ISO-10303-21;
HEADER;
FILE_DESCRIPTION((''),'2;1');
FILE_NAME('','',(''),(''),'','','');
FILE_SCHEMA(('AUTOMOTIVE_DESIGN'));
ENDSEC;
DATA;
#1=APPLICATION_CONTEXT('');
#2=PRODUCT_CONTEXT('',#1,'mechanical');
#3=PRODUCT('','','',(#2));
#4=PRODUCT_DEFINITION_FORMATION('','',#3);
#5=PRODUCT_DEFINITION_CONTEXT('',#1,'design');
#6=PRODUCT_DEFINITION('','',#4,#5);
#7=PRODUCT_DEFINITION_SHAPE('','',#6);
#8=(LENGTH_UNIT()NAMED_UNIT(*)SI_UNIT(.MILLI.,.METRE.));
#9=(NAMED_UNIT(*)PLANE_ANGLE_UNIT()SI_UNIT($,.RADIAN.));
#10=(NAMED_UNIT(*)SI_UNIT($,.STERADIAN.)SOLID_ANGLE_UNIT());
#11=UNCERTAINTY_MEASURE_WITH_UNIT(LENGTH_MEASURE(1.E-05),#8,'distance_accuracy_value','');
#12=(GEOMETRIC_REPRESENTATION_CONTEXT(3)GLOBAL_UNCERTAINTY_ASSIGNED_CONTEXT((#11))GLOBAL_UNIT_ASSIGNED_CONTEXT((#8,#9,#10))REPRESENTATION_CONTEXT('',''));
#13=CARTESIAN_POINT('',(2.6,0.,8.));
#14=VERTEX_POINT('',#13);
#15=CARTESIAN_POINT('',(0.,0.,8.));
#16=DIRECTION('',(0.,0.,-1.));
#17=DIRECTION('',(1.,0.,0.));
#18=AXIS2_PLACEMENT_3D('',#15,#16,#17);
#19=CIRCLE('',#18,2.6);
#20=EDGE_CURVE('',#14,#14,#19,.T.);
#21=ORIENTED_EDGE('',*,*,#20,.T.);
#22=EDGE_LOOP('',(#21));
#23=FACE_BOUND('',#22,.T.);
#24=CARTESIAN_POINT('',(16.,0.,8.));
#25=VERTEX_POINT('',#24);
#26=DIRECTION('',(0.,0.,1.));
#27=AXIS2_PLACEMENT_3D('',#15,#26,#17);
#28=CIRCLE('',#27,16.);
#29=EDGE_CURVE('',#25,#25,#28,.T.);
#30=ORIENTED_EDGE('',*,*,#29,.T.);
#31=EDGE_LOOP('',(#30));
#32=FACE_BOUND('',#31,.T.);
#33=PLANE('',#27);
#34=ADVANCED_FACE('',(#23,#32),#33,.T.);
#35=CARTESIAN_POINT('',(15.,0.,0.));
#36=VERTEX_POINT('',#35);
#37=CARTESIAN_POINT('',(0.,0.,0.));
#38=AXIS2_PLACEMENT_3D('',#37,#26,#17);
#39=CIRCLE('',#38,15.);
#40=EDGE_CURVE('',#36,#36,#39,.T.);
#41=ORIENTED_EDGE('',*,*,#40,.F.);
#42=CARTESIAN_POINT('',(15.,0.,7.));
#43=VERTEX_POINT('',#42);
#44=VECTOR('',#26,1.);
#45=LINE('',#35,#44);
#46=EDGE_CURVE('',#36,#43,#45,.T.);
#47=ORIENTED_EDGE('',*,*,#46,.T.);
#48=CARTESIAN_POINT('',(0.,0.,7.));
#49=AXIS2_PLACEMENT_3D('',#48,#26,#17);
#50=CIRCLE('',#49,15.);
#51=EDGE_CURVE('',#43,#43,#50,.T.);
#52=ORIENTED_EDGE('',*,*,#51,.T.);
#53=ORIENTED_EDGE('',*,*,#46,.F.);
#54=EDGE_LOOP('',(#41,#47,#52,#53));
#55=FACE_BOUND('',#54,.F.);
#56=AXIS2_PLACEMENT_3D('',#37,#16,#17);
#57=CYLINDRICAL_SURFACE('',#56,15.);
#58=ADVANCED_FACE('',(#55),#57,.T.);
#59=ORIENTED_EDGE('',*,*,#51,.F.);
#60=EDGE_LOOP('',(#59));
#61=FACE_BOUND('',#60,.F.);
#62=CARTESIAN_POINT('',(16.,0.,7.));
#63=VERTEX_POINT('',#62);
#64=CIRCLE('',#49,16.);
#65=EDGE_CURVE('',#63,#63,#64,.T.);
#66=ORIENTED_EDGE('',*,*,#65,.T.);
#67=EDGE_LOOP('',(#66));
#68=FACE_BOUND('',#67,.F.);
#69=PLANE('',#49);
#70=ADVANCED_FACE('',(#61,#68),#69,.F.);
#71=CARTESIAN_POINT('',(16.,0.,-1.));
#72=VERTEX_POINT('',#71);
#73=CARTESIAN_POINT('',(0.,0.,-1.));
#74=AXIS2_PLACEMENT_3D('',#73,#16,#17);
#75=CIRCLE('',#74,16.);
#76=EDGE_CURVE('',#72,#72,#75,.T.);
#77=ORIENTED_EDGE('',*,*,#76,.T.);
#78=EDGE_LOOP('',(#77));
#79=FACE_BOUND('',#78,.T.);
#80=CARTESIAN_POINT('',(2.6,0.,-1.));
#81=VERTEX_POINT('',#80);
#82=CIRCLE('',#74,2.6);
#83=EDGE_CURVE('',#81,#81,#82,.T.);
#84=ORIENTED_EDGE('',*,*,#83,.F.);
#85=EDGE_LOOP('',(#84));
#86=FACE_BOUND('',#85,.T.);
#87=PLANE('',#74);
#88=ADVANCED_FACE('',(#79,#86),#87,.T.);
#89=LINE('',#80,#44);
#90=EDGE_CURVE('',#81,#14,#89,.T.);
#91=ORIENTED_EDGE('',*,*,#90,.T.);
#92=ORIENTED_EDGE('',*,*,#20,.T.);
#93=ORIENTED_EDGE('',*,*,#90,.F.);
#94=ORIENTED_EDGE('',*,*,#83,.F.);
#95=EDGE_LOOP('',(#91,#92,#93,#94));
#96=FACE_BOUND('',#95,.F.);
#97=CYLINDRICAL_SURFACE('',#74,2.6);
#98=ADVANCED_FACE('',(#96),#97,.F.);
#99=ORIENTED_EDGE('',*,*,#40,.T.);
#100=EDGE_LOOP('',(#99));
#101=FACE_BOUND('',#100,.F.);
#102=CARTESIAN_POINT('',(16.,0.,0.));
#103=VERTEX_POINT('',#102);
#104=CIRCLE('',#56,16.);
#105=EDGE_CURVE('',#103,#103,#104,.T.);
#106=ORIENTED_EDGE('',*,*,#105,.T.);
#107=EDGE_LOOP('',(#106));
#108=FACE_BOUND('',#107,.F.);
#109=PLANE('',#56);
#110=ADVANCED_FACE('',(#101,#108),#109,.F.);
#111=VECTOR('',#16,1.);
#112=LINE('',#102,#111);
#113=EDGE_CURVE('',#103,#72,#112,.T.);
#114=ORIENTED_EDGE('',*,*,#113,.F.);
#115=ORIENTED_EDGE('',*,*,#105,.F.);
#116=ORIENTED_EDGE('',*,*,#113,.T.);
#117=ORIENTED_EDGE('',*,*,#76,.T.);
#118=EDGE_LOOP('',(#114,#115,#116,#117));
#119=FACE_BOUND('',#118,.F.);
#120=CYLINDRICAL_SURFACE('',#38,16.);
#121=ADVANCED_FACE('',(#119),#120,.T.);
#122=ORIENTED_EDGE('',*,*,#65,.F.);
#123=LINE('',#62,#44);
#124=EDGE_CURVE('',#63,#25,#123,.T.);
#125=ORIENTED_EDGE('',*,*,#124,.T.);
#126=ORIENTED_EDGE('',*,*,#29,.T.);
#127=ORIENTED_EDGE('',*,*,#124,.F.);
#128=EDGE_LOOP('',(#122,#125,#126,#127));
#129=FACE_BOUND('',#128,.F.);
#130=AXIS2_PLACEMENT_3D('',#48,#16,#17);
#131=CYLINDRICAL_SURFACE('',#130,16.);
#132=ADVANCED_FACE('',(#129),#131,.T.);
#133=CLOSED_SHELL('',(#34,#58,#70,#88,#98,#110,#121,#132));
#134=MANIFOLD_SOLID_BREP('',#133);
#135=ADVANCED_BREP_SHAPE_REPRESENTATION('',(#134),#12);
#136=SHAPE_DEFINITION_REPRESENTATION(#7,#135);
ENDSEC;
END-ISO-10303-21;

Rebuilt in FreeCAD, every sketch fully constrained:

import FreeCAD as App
import Part
import Sketcher

doc = App.newDocument("Part")
params = doc.addObject("Spreadsheet::Sheet", "Params")
for row, (alias, value) in enumerate([
    ("sketch1_diameter", "30 mm"),
    ("pad1_length", "7 mm"),
    ("sketch2_diameter", "32 mm"),
    ("pad2_length", "1 mm"),
    ("sketch3_diameter", "32 mm"),
    ("pad3_length", "1 mm"),
    ("sketch4_diameter", "5.2 mm"),
], start=1):
    params.set(f"A{row}", alias)
    params.set(f"B{row}", "=" + value)
    params.setAlias(f"B{row}", alias)

body = doc.addObject("PartDesign::Body", "Body")

sketch1 = doc.addObject("Sketcher::SketchObject", "Sketch")
body.addObject(sketch1)
sketch1.AttachmentSupport = (doc.XY_Plane, [""])
sketch1.MapMode = "FlatFace"
sketch1.addGeometry(Part.Circle(App.Vector(0, 0, 0), App.Vector(0, 0, 1), 15), False)
sketch1.addConstraint([
    Sketcher.Constraint("Coincident", 0, 3, -1, 1),
    Sketcher.Constraint("Diameter", 0, 30.0),
])
sketch1.setExpression("Constraints[1]", "Params.sketch1_diameter")
pad1 = doc.addObject("PartDesign::Pad", "Pad")
body.addObject(pad1)
pad1.Profile = sketch1
pad1.setExpression("Length", "Params.pad1_length")

sketch2 = doc.addObject("Sketcher::SketchObject", "Sketch001")
body.addObject(sketch2)
sketch2.AttachmentSupport = (doc.XY_Plane, [""])
sketch2.MapMode = "FlatFace"
sketch2.AttachmentOffset = App.Placement(App.Vector(0, 0, 7), App.Rotation())
sketch2.addGeometry(Part.Circle(App.Vector(0, 0, 0), App.Vector(0, 0, 1), 16), False)
sketch2.addConstraint([
    Sketcher.Constraint("Coincident", 0, 3, -1, 1),
    Sketcher.Constraint("Diameter", 0, 32.0),
])
sketch2.setExpression("Constraints[1]", "Params.sketch2_diameter")
pad2 = doc.addObject("PartDesign::Pad", "Pad001")
body.addObject(pad2)
pad2.Profile = sketch2
pad2.setExpression("Length", "Params.pad2_length")

sketch3 = doc.addObject("Sketcher::SketchObject", "Sketch002")
body.addObject(sketch3)
sketch3.AttachmentSupport = (doc.XY_Plane, [""])
sketch3.MapMode = "FlatFace"
sketch3.addGeometry(Part.Circle(App.Vector(0, 0, 0), App.Vector(0, 0, 1), 16), False)
sketch3.addConstraint([
    Sketcher.Constraint("Coincident", 0, 3, -1, 1),
    Sketcher.Constraint("Diameter", 0, 32.0),
])
sketch3.setExpression("Constraints[1]", "Params.sketch3_diameter")
pad3 = doc.addObject("PartDesign::Pad", "Pad002")
body.addObject(pad3)
pad3.Profile = sketch3
pad3.setExpression("Length", "Params.pad3_length")
pad3.Reversed = True

sketch4 = doc.addObject("Sketcher::SketchObject", "Sketch003")
body.addObject(sketch4)
sketch4.AttachmentSupport = (doc.XY_Plane, [""])
sketch4.MapMode = "FlatFace"
sketch4.AttachmentOffset = App.Placement(App.Vector(0, 0, -1), App.Rotation())
sketch4.addGeometry(Part.Circle(App.Vector(0, 0, 0), App.Vector(0, 0, 1), 2.6), False)
sketch4.addConstraint([
    Sketcher.Constraint("Coincident", 0, 3, -1, 1),
    Sketcher.Constraint("Diameter", 0, 5.2),
])
sketch4.setExpression("Constraints[1]", "Params.sketch4_diameter")
pocket1 = doc.addObject("PartDesign::Pocket", "Pocket")
body.addObject(pocket1)
pocket1.Profile = sketch4
pocket1.Type = "ThroughAll"
pocket1.Reversed = True

doc.recompute()
